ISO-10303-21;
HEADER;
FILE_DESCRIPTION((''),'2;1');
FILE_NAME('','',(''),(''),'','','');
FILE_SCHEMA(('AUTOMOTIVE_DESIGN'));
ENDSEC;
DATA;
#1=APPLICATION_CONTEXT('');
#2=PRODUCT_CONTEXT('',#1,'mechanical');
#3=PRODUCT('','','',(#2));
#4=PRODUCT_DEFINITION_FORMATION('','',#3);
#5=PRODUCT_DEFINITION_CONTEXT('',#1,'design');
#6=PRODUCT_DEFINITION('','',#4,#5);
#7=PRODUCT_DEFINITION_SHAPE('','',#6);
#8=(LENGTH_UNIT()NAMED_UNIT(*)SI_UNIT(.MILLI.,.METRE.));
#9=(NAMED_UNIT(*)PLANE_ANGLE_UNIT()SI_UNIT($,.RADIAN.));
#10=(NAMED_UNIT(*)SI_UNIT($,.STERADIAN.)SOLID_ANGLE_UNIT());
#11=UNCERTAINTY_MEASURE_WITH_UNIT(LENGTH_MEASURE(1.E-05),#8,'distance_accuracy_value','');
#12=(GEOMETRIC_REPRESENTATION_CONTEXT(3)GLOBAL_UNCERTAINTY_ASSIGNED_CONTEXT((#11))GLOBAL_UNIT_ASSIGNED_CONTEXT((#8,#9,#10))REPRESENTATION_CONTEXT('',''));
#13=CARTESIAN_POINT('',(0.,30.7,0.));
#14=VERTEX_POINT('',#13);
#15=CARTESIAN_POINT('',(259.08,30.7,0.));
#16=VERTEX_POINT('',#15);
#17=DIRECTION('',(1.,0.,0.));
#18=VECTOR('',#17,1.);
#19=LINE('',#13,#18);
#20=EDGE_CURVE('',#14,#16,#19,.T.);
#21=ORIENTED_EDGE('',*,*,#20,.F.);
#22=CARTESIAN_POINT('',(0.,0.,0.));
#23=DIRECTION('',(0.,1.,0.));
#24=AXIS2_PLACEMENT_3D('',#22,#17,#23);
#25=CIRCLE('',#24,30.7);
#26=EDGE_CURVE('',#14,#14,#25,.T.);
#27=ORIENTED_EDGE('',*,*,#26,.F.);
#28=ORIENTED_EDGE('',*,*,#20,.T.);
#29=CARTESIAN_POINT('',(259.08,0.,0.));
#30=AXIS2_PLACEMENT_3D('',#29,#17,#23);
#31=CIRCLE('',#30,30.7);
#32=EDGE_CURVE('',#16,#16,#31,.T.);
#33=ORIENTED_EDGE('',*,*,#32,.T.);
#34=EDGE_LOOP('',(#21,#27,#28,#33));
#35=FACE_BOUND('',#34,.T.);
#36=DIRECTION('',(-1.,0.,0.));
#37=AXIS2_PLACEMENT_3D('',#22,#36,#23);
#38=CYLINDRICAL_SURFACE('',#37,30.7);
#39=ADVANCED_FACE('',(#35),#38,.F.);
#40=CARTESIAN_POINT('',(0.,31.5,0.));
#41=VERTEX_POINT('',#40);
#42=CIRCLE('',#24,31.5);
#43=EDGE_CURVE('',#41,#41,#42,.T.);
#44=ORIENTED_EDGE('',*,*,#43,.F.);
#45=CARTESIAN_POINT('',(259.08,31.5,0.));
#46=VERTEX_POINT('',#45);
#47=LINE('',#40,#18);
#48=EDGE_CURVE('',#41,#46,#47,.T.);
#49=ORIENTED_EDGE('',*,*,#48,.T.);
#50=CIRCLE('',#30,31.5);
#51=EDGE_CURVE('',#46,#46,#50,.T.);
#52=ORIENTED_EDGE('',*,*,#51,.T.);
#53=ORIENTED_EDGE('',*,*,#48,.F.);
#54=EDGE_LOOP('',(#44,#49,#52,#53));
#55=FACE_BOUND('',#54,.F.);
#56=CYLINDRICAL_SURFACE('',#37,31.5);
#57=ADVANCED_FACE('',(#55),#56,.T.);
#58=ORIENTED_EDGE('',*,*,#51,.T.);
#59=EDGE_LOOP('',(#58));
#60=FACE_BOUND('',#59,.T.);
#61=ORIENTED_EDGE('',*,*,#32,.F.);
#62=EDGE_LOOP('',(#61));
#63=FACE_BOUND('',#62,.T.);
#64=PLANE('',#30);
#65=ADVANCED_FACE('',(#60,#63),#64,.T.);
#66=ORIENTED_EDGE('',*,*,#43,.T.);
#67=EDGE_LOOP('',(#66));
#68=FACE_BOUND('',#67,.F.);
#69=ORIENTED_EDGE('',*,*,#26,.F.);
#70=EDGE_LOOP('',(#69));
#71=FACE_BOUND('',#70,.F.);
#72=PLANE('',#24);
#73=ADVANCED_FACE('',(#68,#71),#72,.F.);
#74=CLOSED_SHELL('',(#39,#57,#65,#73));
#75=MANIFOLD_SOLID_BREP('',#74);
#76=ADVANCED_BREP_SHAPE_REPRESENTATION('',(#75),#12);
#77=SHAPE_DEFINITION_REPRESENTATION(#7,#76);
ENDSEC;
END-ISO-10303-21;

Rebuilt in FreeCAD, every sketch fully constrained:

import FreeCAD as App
import Part
import Sketcher
Q = App.Units.Quantity

doc = App.newDocument("Part")
params = doc.addObject("Spreadsheet::Sheet", "Params")
for row, (alias, value) in enumerate([
    ("sketch1_diameter", "63 mm"),
    ("sketch1_diameter2", "61.4 mm"),
    ("pad1_length", "259.08 mm"),
], start=1):
    params.set(f"A{row}", alias)
    params.set(f"B{row}", "=" + value)
    params.setAlias(f"B{row}", alias)

body = doc.addObject("PartDesign::Body", "Body")

sketch1 = body.newObject("Sketcher::SketchObject", "Sketch")
sketch1.AttachmentSupport = (doc.getObject("YZ_Plane"), [""])
sketch1.MapMode = "FlatFace"
sketch1.addGeometry(Part.Circle(App.Vector(0, 0, 0), App.Vector(0, 0, 1), 32), False)
sketch1.addGeometry(Part.Circle(App.Vector(0, 0, 0), App.Vector(0, 0, 1), 31), False)
sketch1.addConstraint(Sketcher.Constraint("Coincident", 0, 3, -1, 1))
sketch1.addConstraint(Sketcher.Constraint("Coincident", 1, 3, -1, 1))
sketch1.addConstraint(Sketcher.Constraint("Diameter", 0, Q("63 mm")))
sketch1.addConstraint(Sketcher.Constraint("Diameter", 1, Q("61.4 mm")))
sketch1.setExpression("Constraints[2]", "Params.sketch1_diameter")
sketch1.setExpression("Constraints[3]", "Params.sketch1_diameter2")
pad1 = body.newObject("PartDesign::Pad", "Pad")
pad1.Profile = sketch1
pad1.setExpression("Length", "Params.pad1_length")

doc.recompute()
